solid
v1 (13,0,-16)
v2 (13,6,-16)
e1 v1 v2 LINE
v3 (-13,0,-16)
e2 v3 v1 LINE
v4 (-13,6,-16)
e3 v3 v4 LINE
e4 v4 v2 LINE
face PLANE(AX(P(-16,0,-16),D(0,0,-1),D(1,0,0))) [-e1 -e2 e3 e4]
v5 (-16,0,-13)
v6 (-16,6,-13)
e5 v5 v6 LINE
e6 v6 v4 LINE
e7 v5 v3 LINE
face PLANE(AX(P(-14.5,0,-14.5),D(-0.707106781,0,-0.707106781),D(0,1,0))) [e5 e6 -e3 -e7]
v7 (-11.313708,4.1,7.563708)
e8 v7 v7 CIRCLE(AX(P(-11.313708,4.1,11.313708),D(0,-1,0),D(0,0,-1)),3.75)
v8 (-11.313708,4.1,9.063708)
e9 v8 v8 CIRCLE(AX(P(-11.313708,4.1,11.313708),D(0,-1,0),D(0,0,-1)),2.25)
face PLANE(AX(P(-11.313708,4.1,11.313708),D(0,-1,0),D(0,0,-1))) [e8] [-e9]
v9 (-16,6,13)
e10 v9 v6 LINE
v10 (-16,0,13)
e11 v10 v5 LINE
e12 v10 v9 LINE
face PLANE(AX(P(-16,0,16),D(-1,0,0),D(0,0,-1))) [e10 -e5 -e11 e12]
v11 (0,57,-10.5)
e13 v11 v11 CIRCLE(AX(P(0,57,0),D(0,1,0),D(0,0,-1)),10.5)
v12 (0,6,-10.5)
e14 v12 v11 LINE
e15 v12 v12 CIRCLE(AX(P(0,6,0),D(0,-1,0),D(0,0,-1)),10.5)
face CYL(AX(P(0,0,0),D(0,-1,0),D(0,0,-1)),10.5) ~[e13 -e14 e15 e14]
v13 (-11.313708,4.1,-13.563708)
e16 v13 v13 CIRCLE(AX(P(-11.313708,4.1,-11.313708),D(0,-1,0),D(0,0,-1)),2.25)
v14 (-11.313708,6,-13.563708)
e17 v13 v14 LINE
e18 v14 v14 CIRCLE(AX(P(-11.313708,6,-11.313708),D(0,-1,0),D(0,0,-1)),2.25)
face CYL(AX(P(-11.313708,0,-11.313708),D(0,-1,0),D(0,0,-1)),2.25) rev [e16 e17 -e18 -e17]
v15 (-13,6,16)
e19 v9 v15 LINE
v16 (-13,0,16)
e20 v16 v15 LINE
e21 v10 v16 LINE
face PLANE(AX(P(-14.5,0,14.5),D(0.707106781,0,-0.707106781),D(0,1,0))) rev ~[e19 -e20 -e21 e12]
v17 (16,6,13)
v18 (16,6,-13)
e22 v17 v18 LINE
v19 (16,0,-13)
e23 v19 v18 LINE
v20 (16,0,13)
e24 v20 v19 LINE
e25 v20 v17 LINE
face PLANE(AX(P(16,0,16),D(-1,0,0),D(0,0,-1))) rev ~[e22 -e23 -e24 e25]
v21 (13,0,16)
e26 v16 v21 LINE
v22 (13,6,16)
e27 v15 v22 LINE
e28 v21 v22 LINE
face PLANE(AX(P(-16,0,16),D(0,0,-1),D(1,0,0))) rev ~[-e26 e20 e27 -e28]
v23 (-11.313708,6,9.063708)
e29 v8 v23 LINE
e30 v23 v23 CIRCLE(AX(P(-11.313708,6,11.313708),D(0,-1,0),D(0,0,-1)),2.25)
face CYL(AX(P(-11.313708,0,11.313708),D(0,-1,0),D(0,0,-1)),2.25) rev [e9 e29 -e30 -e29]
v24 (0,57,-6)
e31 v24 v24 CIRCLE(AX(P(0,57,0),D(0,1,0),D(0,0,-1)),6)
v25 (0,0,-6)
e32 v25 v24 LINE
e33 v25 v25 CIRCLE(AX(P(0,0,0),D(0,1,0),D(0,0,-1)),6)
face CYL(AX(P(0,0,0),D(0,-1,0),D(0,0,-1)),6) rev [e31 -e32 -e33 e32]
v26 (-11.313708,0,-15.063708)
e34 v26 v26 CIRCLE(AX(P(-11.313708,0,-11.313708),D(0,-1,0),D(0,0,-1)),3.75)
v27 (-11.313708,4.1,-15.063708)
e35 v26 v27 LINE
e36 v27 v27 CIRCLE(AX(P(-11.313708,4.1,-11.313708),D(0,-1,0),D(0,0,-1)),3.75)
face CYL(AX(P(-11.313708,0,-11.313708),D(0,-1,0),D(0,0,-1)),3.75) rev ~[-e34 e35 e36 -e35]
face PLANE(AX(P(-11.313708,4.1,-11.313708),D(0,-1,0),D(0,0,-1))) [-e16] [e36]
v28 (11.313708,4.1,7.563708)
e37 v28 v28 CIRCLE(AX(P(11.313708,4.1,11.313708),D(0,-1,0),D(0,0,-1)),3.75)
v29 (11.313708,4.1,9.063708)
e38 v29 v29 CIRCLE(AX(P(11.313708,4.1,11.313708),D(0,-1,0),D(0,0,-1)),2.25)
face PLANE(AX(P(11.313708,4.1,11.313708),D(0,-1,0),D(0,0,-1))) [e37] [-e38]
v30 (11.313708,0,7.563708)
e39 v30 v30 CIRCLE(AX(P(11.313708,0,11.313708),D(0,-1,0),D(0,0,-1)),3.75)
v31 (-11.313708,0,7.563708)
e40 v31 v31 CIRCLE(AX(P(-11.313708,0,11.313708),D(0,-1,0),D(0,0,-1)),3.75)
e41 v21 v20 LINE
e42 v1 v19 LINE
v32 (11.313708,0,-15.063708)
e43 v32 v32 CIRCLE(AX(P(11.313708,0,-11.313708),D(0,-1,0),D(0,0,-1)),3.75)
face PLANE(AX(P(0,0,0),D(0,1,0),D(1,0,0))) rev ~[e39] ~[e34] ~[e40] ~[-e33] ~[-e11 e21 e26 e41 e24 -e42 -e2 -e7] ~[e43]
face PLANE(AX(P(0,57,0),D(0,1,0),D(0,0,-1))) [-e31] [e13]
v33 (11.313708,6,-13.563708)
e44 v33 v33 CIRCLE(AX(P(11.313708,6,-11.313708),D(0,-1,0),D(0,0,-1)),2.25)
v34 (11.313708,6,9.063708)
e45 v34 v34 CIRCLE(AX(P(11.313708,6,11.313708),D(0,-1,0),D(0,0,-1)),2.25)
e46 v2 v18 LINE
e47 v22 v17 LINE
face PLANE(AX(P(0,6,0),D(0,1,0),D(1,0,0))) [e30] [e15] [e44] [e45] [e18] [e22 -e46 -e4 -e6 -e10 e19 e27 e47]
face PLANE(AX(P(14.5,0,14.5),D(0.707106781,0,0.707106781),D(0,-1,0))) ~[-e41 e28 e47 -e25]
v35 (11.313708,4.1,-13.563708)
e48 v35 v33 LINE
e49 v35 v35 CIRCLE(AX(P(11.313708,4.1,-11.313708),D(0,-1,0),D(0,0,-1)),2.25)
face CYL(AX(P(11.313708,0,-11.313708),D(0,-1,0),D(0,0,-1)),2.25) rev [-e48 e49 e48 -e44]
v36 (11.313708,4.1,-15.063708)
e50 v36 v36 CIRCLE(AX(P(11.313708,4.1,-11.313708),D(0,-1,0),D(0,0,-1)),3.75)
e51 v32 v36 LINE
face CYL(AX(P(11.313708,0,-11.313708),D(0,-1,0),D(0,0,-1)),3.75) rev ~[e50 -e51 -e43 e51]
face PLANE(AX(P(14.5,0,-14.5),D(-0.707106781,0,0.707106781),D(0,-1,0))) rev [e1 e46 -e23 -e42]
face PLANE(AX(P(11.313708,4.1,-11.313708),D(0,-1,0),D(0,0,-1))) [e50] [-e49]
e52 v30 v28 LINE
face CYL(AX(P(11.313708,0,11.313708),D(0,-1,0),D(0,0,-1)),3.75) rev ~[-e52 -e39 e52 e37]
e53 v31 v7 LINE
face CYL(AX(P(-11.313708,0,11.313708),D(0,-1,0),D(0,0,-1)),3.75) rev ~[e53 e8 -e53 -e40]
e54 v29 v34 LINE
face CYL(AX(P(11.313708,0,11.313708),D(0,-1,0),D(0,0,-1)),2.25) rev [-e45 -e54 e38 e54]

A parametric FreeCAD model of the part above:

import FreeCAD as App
import Part
import Sketcher

V = App.Vector
Q = App.Units.Quantity


def edges_at(feature, points):
    """Names of the edges that pass closest to the given points."""
    edges = feature.Shape.Edges
    near = lambda p: min(range(len(edges)), key=lambda i: edges[i].distToShape(Part.Vertex(*p))[0])
    return sorted({f"Edge{near(p) + 1}" for p in points})

doc = App.newDocument("Part")
params = doc.addObject("Spreadsheet::Sheet", "Params")
for row, (alias, value) in enumerate([
    ("sketch1_diameter", "21 mm"),
    ("sketch1_diameter2", "12 mm"),
    ("pad1_length", "57 mm"),
    ("sketch2_diameter", "12 mm"),
    ("sketch2_width", "32 mm"),
    ("pad2_length", "6 mm"),
    ("sketch3_diameter", "4.5 mm"),
    ("chamfer_size", "3 mm"),
    ("sketch4_diameter", "7.5 mm"),
    ("pocket2_length", "4.1 mm"),
], start=1):
    params.set(f"A{row}", alias)
    params.set(f"B{row}", "=" + value)
    params.setAlias(f"B{row}", alias)

body = doc.addObject("PartDesign::Body", "Body")

sketch1 = body.newObject("Sketcher::SketchObject", "Sketch")
sketch1.AttachmentSupport = (doc.getObject("XZ_Plane"), [""])
sketch1.MapMode = "FlatFace"
sketch1.addGeometry([
    Part.Circle(V(0, 0, 0), V(0, 0, 1), 10),
    Part.Circle(V(0, 0, 0), V(0, 0, 1), 6),
], False)
sketch1.addConstraint([
    Sketcher.Constraint("Coincident", 0, 3, -1, 1),
    Sketcher.Constraint("Coincident", 1, 3, -1, 1),
    Sketcher.Constraint("Diameter", 0, Q("21 mm")),
    Sketcher.Constraint("Diameter", 1, Q("12 mm")),
])
sketch1.setExpression("Constraints[2]", "Params.sketch1_diameter")
sketch1.setExpression("Constraints[3]", "Params.sketch1_diameter2")
pad1 = body.newObject("PartDesign::Pad", "Pad")
pad1.Profile = sketch1
pad1.setExpression("Length", "Params.pad1_length")
pad1.Reversed = True

sketch2 = body.newObject("Sketcher::SketchObject", "Sketch001")
sketch2.AttachmentSupport = (doc.getObject("XZ_Plane"), [""])
sketch2.MapMode = "FlatFace"
sketch2.addGeometry([
    Part.LineSegment(V(-16, -16, 0), V(-16, 16, 0)),
    Part.LineSegment(V(-16, 16, 0), V(16, 16, 0)),
    Part.LineSegment(V(16, 16, 0), V(16, -16, 0)),
    Part.LineSegment(V(16, -16, 0), V(-16, -16, 0)),
    Part.Circle(V(0, 0, 0), V(0, 0, 1), 6),
], False)
sketch2.addConstraint([
    Sketcher.Constraint("Coincident", 0, 2, 1, 1),
    Sketcher.Constraint("Coincident", 1, 2, 2, 1),
    Sketcher.Constraint("Coincident", 2, 2, 3, 1),
    Sketcher.Constraint("Coincident", 3, 2, 0, 1),
    Sketcher.Constraint("Vertical", 0),
    Sketcher.Constraint("Horizontal", 1),
    Sketcher.Constraint("Vertical", 2),
    Sketcher.Constraint("Horizontal", 3),
    Sketcher.Constraint("Coincident", 4, 3, -1, 1),
    Sketcher.Constraint("Symmetric", 0, 2, 2, 2, -1, 1),
    Sketcher.Constraint("Equal", 3, 0),
    Sketcher.Constraint("Diameter", 4, Q("12 mm")),
    Sketcher.Constraint("DistanceX", 1, 1, 1, 2, Q("32 mm")),
])
sketch2.setExpression("Constraints[11]", "Params.sketch2_diameter")
sketch2.setExpression("Constraints[12]", "Params.sketch2_width")
pad2 = body.newObject("PartDesign::Pad", "Pad001")
pad2.Profile = sketch2
pad2.setExpression("Length", "Params.pad2_length")
pad2.Reversed = True

sketch3 = body.newObject("Sketcher::SketchObject", "Sketch002")
sketch3.AttachmentSupport = (doc.getObject("XZ_Plane"), [""])
sketch3.MapMode = "FlatFace"
sketch3.addGeometry([
    Part.Circle(V(-11.3, -11.3, 0), V(0, 0, 1), 2.2),
    Part.Circle(V(-11.3, 11.3, 0), V(0, 0, 1), 2.2),
    Part.Circle(V(11.3, 11.3, 0), V(0, 0, 1), 2.2),
    Part.Circle(V(11.3, -11.3, 0), V(0, 0, 1), 2.2),
], False)
sketch3.addConstraint([
    Sketcher.Constraint("Equal", 0, 1),
    Sketcher.Constraint("Equal", 1, 2),
    Sketcher.Constraint("Equal", 2, 3),
    Sketcher.Constraint("Symmetric", 0, 3, 2, 3, -1, 1),
    Sketcher.Constraint("Symmetric", 1, 3, 3, 3, -1, 1),
    Sketcher.Constraint("Symmetric", 1, 3, 2, 3, -2),
    Sketcher.Constraint("Diameter", 0, Q("4.5 mm")),
    Sketcher.Constraint("DistanceX", 0, 3, -1, 1, Q("11.313708 mm")),
    Sketcher.Constraint("DistanceY", 0, 3, -1, 1, Q("11.313708 mm")),
])
sketch3.setExpression("Constraints[6]", "Params.sketch3_diameter")
pocket1 = body.newObject("PartDesign::Pocket", "Pocket")
pocket1.Profile = sketch3
pocket1.Type = "ThroughAll"
doc.recompute()

chamfer = body.newObject("PartDesign::Chamfer", "Chamfer")
chamfer.Base = (pocket1, edges_at(pocket1, [
    (16, 3, 16),
    (16, 3, -16),
    (-16, 3, -16),
    (-16, 3, 16),
]))
chamfer.setExpression("Size", "Params.chamfer_size")

sketch4 = body.newObject("Sketcher::SketchObject", "Sketch003")
sketch4.AttachmentSupport = (doc.getObject("XZ_Plane"), [""])
sketch4.MapMode = "FlatFace"
sketch4.addGeometry([
    Part.Circle(V(-11.3, 11.3, 0), V(0, 0, 1), 3.8),
    Part.Circle(V(11.3, 11.3, 0), V(0, 0, 1), 3.8),
    Part.Circle(V(11.3, -11.3, 0), V(0, 0, 1), 3.8),
    Part.Circle(V(-11.3, -11.3, 0), V(0, 0, 1), 3.8),
], False)
sketch4.addConstraint([
    Sketcher.Constraint("Equal", 0, 1),
    Sketcher.Constraint("Equal", 1, 2),
    Sketcher.Constraint("Equal", 2, 3),
    Sketcher.Constraint("Symmetric", 0, 3, 2, 3, -1, 1),
    Sketcher.Constraint("Symmetric", 1, 3, 3, 3, -1, 1),
    Sketcher.Constraint("Symmetric", 0, 3, 1, 3, -2),
    Sketcher.Constraint("Diameter", 0, Q("7.5 mm")),
    Sketcher.Constraint("DistanceX", 0, 3, -1, 1, Q("11.313708 mm")),
    Sketcher.Constraint("DistanceY", -1, 1, 0, 3, Q("11.313708 mm")),
])
sketch4.setExpression("Constraints[6]", "Params.sketch4_diameter")
pocket2 = body.newObject("PartDesign::Pocket", "Pocket001")
pocket2.Profile = sketch4
pocket2.setExpression("Length", "Params.pocket2_length")

doc.recompute()
